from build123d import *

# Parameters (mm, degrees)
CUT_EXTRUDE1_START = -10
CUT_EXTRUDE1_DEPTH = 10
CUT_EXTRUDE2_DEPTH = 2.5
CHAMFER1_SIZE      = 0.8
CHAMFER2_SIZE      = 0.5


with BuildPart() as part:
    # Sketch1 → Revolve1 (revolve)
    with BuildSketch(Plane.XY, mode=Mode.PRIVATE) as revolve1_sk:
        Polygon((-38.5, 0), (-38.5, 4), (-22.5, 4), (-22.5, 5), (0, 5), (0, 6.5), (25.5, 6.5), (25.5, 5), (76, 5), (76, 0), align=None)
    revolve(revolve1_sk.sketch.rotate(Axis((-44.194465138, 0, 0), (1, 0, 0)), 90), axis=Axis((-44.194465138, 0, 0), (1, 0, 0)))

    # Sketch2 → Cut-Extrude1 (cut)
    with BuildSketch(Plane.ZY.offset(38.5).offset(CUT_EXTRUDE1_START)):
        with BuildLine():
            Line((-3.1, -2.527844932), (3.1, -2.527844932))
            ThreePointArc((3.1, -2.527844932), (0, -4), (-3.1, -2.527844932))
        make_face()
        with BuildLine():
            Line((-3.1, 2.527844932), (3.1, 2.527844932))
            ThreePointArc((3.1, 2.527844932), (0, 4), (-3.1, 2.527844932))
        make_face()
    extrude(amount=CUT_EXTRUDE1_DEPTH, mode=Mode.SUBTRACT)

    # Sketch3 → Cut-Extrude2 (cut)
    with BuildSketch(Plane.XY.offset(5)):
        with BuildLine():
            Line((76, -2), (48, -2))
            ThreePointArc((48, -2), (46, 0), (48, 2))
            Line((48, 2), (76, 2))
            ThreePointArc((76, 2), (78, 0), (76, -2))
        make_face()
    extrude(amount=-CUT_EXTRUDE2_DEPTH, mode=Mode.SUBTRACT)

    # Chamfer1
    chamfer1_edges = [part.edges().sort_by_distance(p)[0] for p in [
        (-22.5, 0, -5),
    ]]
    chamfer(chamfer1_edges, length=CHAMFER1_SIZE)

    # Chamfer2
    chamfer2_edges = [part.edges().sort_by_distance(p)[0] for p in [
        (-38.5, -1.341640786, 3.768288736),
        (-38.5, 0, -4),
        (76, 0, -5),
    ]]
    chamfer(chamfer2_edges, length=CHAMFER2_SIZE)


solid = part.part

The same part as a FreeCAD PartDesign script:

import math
import FreeCAD as App
import Part
import Sketcher

V = App.Vector
Q = App.Units.Quantity


def edges_at(feature, points):
    """Names of the edges that pass closest to the given points."""
    edges = feature.Shape.Edges
    near = lambda p: min(range(len(edges)), key=lambda i: edges[i].distToShape(Part.Vertex(*p))[0])
    return sorted({f"Edge{near(p) + 1}" for p in points})

doc = App.newDocument("Part")
params = doc.addObject("Spreadsheet::Sheet", "Params")
for row, (alias, value) in enumerate([
    ("sketch1_width", "16 mm"),
    ("sketch1_height", "4 mm"),
    ("sketch1_height2", "5 mm"),
    ("sketch1_width2", "114.5 mm"),
    ("sketch1_width3", "50.5 mm"),
    ("revolution_angle", "360 deg"),
    ("sketch2_radius", "4 mm"),
    ("sketch2_height", "6.2 mm"),
    ("pocket1_length", "10 mm"),
    ("sketch3_radius", "2 mm"),
    ("sketch3_width", "28 mm"),
    ("pocket2_length", "2.5 mm"),
    ("chamfer_size", "0.8 mm"),
    ("chamfer2_size", "0.5 mm"),
], start=1):
    params.set(f"A{row}", alias)
    params.set(f"B{row}", "=" + value)
    params.setAlias(f"B{row}", alias)

body = doc.addObject("PartDesign::Body", "Body")

sketch1 = body.newObject("Sketcher::SketchObject", "Sketch")
sketch1.AttachmentSupport = (doc.getObject("XY_Plane"), [""])
sketch1.MapMode = "FlatFace"
sketch1.addGeometry([
    Part.LineSegment(V(-38.5, 4, 0), V(-38.5, 0, 0)),
    Part.LineSegment(V(-38.5, 0, 0), V(76, 0, 0)),
    Part.LineSegment(V(76, 0, 0), V(76, 5, 0)),
    Part.LineSegment(V(76, 5, 0), V(25.5, 5, 0)),
    Part.LineSegment(V(25.5, 5, 0), V(25.5, 6.5, 0)),
    Part.LineSegment(V(25.5, 6.5, 0), V(0, 6.5, 0)),
    Part.LineSegment(V(0, 6.5, 0), V(0, 5, 0)),
    Part.LineSegment(V(0, 5, 0), V(-22.5, 5, 0)),
    Part.LineSegment(V(-22.5, 5, 0), V(-22.5, 4, 0)),
    Part.LineSegment(V(-22.5, 4, 0), V(-38.5, 4, 0)),
], False)
sketch1.addConstraint([
    Sketcher.Constraint("Coincident", 0, 2, 1, 1),
    Sketcher.Constraint("Coincident", 1, 2, 2, 1),
    Sketcher.Constraint("Coincident", 2, 2, 3, 1),
    Sketcher.Constraint("Coincident", 3, 2, 4, 1),
    Sketcher.Constraint("Coincident", 4, 2, 5, 1),
    Sketcher.Constraint("Coincident", 5, 2, 6, 1),
    Sketcher.Constraint("Coincident", 6, 2, 7, 1),
    Sketcher.Constraint("Coincident", 7, 2, 8, 1),
    Sketcher.Constraint("Coincident", 8, 2, 9, 1),
    Sketcher.Constraint("Coincident", 9, 2, 0, 1),
    Sketcher.Constraint("Vertical", 0),
    Sketcher.Constraint("Horizontal", 1),
    Sketcher.Constraint("Vertical", 2),
    Sketcher.Constraint("Horizontal", 3),
    Sketcher.Constraint("Vertical", 4),
    Sketcher.Constraint("Horizontal", 5),
    Sketcher.Constraint("Vertical", 6),
    Sketcher.Constraint("Horizontal", 7),
    Sketcher.Constraint("Vertical", 8),
    Sketcher.Constraint("Horizontal", 9),
    Sketcher.Constraint("PointOnObject", 0, 2, -1),
    Sketcher.Constraint("PointOnObject", 5, 2, -2),
    Sketcher.Constraint("Horizontal", 3, 2, 6, 2),
    Sketcher.Constraint("DistanceX", 9, 2, 9, 1, Q("16 mm")),
    Sketcher.Constraint("DistanceY", 0, 2, 0, 1, Q("4 mm")),
    Sketcher.Constraint("DistanceY", 2, 1, 2, 2, Q("5 mm")),
    Sketcher.Constraint("DistanceX", 1, 1, 1, 2, Q("114.5 mm")),
    Sketcher.Constraint("DistanceX", 3, 2, 3, 1, Q("50.5 mm")),
    Sketcher.Constraint("DistanceX", 5, 2, 5, 1, Q("25.5 mm")),
    Sketcher.Constraint("DistanceY", 4, 1, 4, 2, Q("1.5 mm")),
])
sketch1.setExpression("Constraints[23]", "Params.sketch1_width")
sketch1.setExpression("Constraints[24]", "Params.sketch1_height")
sketch1.setExpression("Constraints[25]", "Params.sketch1_height2")
sketch1.setExpression("Constraints[26]", "Params.sketch1_width2")
sketch1.setExpression("Constraints[27]", "Params.sketch1_width3")
revolution = body.newObject("PartDesign::Revolution", "Revolution")
revolution.Profile = sketch1
revolution.ReferenceAxis = (sketch1, ["H_Axis"])
revolution.setExpression("Angle", "Params.revolution_angle")

sketch2 = body.newObject("Sketcher::SketchObject", "Sketch001")
sketch2.AttachmentSupport = (doc.getObject("YZ_Plane"), [""])
sketch2.MapMode = "FlatFace"
sketch2.AttachmentOffset = App.Placement(V(0, 0, -28.5), App.Rotation())
sketch2.addGeometry([
    Part.LineSegment(V(-2.5, 3.1, 0), V(-2.5, -3.1, 0)),
    Part.ArcOfCircle(Part.Circle(V(0, 0, 0), V(0, 0, 1), 4), math.radians(129), math.radians(231)),
    Part.LineSegment(V(2.5, -3.1, 0), V(2.5, 3.1, 0)),
    Part.ArcOfCircle(Part.Circle(V(0, 0, 0), V(0, 0, 1), 4), math.radians(-51), math.radians(51)),
], False)
sketch2.addConstraint([
    Sketcher.Constraint("Coincident", 0, 1, 1, 1),
    Sketcher.Constraint("Coincident", 1, 2, 0, 2),
    Sketcher.Constraint("Coincident", 2, 1, 3, 1),
    Sketcher.Constraint("Coincident", 3, 2, 2, 2),
    Sketcher.Constraint("Vertical", 0),
    Sketcher.Constraint("Vertical", 2),
    Sketcher.Constraint("Coincident", 1, 3, -1, 1),
    Sketcher.Constraint("Coincident", 3, 3, -1, 1),
    Sketcher.Constraint("Equal", 1, 3),
    Sketcher.Constraint("Horizontal", 1, 2, 2, 1),
    Sketcher.Constraint("Radius", 1, Q("4 mm")),
    Sketcher.Constraint("DistanceY", 0, 2, 0, 1, Q("6.2 mm")),
])
sketch2.setExpression("Constraints[10]", "Params.sketch2_radius")
sketch2.setExpression("Constraints[11]", "Params.sketch2_height")
pocket1 = body.newObject("PartDesign::Pocket", "Pocket")
pocket1.Profile = sketch2
pocket1.setExpression("Length", "Params.pocket1_length")

sketch3 = body.newObject("Sketcher::SketchObject", "Sketch002")
sketch3.AttachmentSupport = (doc.getObject("XY_Plane"), [""])
sketch3.MapMode = "FlatFace"
sketch3.AttachmentOffset = App.Placement(V(0, 0, 5), App.Rotation())
sketch3.addGeometry([
    Part.LineSegment(V(48, -2, 0), V(76, -2, 0)),
    Part.ArcOfCircle(Part.Circle(V(76, 0, 0), V(0, 0, 1), 2), math.radians(-90), math.radians(90)),
    Part.LineSegment(V(76, 2, 0), V(48, 2, 0)),
    Part.ArcOfCircle(Part.Circle(V(48, 0, 0), V(0, 0, 1), 2), math.radians(90), math.radians(270)),
], False)
sketch3.addConstraint([
    Sketcher.Constraint("Tangent", 0, 2, 1, 1),
    Sketcher.Constraint("Tangent", 1, 2, 2, 1),
    Sketcher.Constraint("Tangent", 2, 2, 3, 1),
    Sketcher.Constraint("Tangent", 3, 2, 0, 1),
    Sketcher.Constraint("Horizontal", 0),
    Sketcher.Constraint("Horizontal", 2),
    Sketcher.Constraint("PointOnObject", 1, 3, -1),
    Sketcher.Constraint("Radius", 1, Q("2 mm")),
    Sketcher.Constraint("DistanceX", 0, 1, 0, 2, Q("28 mm")),
    Sketcher.Constraint("DistanceX", -1, 1, 1, 3, Q("76 mm")),
])
sketch3.setExpression("Constraints[7]", "Params.sketch3_radius")
sketch3.setExpression("Constraints[8]", "Params.sketch3_width")
pocket2 = body.newObject("PartDesign::Pocket", "Pocket001")
pocket2.Profile = sketch3
pocket2.setExpression("Length", "Params.pocket2_length")
doc.recompute()

chamfer = body.newObject("PartDesign::Chamfer", "Chamfer")
chamfer.Base = (pocket2, edges_at(pocket2, [(-22.5, 0, -5)]))
chamfer.setExpression("Size", "Params.chamfer_size")
doc.recompute()

chamfer2 = body.newObject("PartDesign::Chamfer", "Chamfer001")
chamfer2.Base = (chamfer, edges_at(chamfer, [(-38.5, -1.342, 3.768), (-38.5, 0, -4), (76, 0, -5)]))
chamfer2.setExpression("Size", "Params.chamfer2_size")

doc.recompute()
